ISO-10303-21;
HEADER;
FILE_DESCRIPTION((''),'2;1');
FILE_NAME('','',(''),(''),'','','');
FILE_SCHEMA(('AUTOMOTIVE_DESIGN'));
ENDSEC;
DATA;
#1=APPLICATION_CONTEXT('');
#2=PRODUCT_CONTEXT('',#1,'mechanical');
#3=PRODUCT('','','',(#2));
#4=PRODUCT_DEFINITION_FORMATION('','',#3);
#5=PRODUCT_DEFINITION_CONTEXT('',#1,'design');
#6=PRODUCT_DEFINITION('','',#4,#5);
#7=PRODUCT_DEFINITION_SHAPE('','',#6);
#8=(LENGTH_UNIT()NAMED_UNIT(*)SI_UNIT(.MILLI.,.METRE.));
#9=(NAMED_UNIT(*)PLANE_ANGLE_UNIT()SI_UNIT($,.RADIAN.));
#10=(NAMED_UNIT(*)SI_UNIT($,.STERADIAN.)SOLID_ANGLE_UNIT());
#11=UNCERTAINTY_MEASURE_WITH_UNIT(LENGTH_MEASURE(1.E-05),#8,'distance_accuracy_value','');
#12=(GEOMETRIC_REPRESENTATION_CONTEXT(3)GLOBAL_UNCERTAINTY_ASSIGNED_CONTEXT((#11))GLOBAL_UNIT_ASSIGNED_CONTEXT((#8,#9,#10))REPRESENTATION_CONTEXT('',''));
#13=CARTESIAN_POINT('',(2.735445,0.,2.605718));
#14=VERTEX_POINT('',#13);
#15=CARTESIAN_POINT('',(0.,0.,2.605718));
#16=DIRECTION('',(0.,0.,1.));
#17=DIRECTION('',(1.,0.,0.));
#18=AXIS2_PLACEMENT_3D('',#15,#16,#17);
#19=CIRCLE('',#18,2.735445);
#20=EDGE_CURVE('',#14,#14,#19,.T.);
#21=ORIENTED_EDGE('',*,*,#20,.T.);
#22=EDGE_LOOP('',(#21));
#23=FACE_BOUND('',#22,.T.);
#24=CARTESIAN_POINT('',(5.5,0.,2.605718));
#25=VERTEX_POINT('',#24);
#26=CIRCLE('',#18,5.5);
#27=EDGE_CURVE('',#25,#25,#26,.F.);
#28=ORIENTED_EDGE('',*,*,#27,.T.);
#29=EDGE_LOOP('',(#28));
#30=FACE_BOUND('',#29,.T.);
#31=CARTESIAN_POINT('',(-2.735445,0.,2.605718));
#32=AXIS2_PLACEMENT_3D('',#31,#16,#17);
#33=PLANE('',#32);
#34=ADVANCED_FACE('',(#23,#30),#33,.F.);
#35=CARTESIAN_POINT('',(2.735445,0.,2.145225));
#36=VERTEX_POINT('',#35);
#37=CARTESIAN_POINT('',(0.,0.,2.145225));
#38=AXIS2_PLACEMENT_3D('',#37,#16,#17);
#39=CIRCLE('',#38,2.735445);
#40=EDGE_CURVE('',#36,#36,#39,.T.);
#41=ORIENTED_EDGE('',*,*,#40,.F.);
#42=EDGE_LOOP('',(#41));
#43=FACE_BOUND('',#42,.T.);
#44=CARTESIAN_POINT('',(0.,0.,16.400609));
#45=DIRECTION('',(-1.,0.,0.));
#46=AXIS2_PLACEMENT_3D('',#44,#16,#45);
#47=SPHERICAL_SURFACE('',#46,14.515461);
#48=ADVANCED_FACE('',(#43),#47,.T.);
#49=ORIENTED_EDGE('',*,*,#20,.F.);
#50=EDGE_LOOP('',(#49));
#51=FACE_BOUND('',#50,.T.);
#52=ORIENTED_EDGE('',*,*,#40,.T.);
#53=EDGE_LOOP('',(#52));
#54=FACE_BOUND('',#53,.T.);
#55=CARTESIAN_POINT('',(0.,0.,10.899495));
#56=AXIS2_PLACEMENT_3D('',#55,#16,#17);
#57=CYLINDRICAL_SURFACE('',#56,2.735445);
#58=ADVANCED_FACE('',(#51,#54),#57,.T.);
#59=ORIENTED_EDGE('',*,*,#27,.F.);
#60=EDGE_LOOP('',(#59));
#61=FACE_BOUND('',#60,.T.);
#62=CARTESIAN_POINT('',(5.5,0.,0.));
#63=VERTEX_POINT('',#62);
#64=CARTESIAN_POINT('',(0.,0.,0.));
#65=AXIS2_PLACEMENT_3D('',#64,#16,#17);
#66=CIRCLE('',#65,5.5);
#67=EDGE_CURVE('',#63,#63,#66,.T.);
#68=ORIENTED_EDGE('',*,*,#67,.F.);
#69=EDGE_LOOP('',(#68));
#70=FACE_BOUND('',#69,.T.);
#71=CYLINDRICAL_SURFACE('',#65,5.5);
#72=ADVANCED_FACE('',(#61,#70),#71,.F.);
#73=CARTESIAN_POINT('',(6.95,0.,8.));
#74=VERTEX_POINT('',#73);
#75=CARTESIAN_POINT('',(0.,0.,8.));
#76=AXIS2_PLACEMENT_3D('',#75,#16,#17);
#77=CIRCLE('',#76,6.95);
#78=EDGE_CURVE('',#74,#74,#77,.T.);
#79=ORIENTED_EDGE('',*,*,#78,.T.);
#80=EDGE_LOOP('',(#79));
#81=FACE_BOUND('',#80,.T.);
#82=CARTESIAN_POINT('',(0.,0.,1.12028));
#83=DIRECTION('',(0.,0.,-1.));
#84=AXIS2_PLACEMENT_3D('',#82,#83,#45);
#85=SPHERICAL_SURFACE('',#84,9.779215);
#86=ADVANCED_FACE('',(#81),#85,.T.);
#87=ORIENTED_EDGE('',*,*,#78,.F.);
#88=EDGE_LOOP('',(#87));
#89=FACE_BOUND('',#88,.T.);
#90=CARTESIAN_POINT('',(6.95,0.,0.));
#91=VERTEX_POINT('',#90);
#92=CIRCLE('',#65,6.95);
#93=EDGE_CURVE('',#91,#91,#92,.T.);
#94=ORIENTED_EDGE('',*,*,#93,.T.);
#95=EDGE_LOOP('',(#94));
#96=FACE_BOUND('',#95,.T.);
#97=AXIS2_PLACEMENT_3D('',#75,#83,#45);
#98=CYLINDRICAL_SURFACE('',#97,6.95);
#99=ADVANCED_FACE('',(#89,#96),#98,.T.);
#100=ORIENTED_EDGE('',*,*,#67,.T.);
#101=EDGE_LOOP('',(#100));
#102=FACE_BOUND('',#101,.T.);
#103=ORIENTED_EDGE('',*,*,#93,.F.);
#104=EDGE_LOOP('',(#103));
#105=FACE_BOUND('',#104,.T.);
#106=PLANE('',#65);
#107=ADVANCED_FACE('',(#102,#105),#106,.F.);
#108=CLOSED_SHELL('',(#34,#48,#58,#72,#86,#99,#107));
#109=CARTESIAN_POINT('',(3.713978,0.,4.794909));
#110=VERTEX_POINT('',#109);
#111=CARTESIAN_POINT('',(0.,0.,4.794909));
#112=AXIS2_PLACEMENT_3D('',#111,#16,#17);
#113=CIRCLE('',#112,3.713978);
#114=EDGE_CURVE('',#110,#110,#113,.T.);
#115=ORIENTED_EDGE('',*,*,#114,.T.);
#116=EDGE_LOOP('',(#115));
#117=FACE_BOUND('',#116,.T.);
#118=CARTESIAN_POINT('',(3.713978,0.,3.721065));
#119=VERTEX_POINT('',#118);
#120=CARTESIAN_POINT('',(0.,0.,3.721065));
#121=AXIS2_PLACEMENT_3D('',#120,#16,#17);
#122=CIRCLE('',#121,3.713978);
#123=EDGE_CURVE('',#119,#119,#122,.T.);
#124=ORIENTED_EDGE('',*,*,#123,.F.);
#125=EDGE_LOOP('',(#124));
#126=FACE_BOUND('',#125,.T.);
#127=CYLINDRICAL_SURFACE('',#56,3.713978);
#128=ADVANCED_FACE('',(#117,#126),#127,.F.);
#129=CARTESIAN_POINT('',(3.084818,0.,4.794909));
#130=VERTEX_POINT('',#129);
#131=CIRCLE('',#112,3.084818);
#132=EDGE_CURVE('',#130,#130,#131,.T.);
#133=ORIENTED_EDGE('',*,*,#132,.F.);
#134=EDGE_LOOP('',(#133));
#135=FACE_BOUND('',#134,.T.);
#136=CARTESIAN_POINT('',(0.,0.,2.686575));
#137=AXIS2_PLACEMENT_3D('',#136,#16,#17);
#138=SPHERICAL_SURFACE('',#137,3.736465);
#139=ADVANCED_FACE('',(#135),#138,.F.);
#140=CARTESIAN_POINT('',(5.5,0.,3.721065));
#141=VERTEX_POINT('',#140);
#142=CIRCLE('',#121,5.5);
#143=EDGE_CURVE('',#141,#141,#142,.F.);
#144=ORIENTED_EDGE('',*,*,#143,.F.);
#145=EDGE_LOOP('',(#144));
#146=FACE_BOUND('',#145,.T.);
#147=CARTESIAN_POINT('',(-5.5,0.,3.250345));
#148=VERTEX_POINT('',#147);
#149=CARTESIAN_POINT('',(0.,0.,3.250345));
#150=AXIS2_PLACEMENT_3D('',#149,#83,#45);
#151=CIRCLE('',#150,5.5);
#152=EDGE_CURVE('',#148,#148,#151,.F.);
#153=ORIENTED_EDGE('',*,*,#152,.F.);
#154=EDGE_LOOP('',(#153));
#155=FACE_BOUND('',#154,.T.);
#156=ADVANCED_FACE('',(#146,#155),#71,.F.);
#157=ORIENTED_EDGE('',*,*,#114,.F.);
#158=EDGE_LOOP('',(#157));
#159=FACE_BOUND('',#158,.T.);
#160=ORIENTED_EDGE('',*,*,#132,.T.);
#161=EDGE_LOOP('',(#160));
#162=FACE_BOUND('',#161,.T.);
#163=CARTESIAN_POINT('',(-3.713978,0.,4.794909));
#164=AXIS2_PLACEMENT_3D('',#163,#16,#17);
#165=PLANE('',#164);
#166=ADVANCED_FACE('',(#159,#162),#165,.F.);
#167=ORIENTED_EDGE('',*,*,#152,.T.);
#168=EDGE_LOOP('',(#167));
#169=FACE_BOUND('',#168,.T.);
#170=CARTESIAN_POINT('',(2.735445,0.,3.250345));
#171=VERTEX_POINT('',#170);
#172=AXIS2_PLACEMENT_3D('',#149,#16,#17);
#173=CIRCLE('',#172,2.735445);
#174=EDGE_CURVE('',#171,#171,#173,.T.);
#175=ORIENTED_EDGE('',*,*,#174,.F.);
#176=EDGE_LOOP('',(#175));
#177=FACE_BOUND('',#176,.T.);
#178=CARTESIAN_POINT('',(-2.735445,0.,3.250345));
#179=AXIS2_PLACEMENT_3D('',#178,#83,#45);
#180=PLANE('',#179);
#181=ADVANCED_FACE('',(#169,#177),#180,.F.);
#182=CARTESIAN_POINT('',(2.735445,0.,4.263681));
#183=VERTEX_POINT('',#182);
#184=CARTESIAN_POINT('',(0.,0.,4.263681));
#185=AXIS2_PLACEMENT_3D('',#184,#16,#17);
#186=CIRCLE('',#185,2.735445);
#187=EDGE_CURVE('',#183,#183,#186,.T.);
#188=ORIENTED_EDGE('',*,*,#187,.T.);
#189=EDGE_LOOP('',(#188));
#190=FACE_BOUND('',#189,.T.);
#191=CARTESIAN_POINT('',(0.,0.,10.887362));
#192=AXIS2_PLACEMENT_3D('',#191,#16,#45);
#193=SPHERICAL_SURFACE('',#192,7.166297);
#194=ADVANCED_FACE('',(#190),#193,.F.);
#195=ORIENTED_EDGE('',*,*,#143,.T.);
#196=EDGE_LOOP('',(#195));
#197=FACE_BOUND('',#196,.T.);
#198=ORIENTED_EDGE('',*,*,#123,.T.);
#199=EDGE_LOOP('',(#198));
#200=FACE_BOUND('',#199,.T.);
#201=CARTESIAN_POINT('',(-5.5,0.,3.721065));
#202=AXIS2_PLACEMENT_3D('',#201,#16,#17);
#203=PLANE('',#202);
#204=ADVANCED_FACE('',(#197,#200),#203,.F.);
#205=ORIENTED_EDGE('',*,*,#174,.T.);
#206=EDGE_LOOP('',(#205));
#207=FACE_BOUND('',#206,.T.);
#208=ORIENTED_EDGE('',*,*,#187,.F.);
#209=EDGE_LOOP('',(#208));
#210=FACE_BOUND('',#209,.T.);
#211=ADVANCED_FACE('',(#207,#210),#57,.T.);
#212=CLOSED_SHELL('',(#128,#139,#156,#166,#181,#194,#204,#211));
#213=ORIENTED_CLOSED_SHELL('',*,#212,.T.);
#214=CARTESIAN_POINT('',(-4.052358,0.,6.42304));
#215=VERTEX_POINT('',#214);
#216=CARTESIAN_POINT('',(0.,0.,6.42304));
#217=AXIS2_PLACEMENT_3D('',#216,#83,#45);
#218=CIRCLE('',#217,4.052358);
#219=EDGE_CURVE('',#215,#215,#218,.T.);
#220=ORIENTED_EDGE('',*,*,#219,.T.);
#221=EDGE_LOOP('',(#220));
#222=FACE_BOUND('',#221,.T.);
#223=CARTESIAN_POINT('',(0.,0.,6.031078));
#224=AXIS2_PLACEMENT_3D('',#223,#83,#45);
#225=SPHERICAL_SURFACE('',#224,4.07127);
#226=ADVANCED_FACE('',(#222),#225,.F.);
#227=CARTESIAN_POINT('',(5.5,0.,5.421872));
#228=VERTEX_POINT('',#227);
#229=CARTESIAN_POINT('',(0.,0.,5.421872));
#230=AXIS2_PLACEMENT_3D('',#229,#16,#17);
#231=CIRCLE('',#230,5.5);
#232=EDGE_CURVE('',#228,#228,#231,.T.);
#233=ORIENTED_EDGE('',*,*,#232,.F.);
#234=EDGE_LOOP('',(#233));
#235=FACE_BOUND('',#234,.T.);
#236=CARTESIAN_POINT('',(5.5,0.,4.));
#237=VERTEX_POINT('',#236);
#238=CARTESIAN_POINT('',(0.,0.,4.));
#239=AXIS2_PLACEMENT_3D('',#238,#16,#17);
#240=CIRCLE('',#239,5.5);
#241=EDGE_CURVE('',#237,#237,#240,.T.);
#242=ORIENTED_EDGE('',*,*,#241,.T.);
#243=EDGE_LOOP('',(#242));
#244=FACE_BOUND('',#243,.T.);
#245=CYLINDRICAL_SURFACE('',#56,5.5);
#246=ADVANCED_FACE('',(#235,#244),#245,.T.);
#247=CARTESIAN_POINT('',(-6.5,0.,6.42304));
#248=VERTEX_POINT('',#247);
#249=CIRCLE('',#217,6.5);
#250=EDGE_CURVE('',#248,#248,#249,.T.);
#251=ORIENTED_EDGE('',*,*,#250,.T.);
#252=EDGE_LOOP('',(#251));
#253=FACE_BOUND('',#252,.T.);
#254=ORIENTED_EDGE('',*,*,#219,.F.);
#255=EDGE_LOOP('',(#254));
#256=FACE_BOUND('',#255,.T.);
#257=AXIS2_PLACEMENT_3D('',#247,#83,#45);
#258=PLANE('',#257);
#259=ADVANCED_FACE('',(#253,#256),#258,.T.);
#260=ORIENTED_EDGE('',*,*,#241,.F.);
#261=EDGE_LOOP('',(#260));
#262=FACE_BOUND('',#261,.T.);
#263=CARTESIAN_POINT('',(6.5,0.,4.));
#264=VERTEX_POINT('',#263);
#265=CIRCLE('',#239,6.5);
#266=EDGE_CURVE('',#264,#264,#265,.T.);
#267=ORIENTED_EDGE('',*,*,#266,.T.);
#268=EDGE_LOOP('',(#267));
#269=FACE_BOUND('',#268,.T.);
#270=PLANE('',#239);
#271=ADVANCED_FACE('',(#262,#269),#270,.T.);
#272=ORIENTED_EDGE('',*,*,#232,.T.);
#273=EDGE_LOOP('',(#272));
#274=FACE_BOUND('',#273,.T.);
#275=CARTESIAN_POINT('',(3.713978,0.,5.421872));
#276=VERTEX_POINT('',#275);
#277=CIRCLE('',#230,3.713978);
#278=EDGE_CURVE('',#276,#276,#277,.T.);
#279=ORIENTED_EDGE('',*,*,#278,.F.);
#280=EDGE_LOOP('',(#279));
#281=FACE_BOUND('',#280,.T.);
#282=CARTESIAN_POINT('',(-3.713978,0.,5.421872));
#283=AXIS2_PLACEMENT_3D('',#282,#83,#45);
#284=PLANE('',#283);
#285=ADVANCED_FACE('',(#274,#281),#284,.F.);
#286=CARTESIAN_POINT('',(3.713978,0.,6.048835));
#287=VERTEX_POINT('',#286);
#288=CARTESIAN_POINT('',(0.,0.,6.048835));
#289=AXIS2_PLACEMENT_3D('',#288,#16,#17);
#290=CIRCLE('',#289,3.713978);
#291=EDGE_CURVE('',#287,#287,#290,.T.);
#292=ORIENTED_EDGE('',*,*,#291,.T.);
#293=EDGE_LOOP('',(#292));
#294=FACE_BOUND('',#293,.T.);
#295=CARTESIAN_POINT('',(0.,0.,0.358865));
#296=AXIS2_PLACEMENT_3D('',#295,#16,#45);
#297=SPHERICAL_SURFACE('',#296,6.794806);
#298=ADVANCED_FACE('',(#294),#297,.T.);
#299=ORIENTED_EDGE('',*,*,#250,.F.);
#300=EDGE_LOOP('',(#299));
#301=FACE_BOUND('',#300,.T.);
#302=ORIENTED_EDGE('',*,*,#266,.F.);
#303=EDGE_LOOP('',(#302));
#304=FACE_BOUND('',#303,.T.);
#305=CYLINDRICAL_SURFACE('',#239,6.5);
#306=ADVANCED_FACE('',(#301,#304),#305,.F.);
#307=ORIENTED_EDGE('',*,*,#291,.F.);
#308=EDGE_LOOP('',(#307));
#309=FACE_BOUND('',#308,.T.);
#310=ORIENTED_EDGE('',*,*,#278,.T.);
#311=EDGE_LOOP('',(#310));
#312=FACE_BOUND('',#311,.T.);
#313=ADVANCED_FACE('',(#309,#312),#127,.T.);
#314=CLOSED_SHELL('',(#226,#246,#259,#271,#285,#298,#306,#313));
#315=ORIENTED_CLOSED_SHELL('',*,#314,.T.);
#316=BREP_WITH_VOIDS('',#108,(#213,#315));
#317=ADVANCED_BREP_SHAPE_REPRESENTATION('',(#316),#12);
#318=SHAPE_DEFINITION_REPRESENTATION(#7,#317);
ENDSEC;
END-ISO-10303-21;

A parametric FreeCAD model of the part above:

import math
import FreeCAD as App
import Part
import Sketcher

V = App.Vector

doc = App.newDocument("Part")
body = doc.addObject("PartDesign::Body", "Body")

sketch1 = doc.addObject("Sketcher::SketchObject", "Sketch")
body.addObject(sketch1)
sketch1.AttachmentSupport = (doc.XY_Plane, [""])
sketch1.MapMode = "FlatFace"
sketch1.addGeometry(Part.Circle(V(0, 0, 0), V(0, 0, 1), 7), False)
sketch1.addConstraint(Sketcher.Constraint("Coincident", 0, 3, -1, 1))
sketch1.addConstraint(Sketcher.Constraint("Diameter", 0, 13.9))
pad1 = doc.addObject("PartDesign::Pad", "Pad")
body.addObject(pad1)
pad1.Profile = sketch1
pad1.Length = 8

sketch2 = doc.addObject("Sketcher::SketchObject", "Sketch001")
body.addObject(sketch2)
sketch2.AttachmentSupport = (doc.XY_Plane, [""])
sketch2.MapMode = "FlatFace"
sketch2.AttachmentOffset = App.Placement(V(0, 0, 8), App.Rotation())
sketch2.addGeometry(Part.Circle(V(0, 0, 0), V(0, 0, 1), 6), False)
sketch2.addConstraint(Sketcher.Constraint("Coincident", 0, 3, -1, 1))
sketch2.addConstraint(Sketcher.Constraint("Diameter", 0, 13.0))
pocket1 = doc.addObject("PartDesign::Pocket", "Pocket")
body.addObject(pocket1)
pocket1.Profile = sketch2
pocket1.Length = 4

sketch3 = doc.addObject("Sketcher::SketchObject", "Sketch002")
body.addObject(sketch3)
sketch3.AttachmentSupport = (doc.XY_Plane, [""])
sketch3.MapMode = "FlatFace"
sketch3.AttachmentOffset = App.Placement(V(0, 0, 4), App.Rotation())
sketch3.addGeometry(Part.Circle(V(0, 0, 0), V(0, 0, 1), 6), False)
sketch3.addConstraint(Sketcher.Constraint("Coincident", 0, 3, -1, 1))
sketch3.addConstraint(Sketcher.Constraint("Diameter", 0, 11.0))
pocket2 = doc.addObject("PartDesign::Pocket", "Pocket001")
body.addObject(pocket2)
pocket2.Profile = sketch3
pocket2.Type = "ThroughAll"

sketch4 = doc.addObject("Sketcher::SketchObject", "Sketch003")
body.addObject(sketch4)
sketch4.AttachmentSupport = (doc.XZ_Plane, [""])
sketch4.MapMode = "FlatFace"
sketch4.addGeometry(Part.LineSegment(V(-6.5, 8, 0), V(-6.95, 8, 0)), False)
sketch4.addGeometry(Part.ArcOfCircle(Part.Circle(V(0, 1.12, 0), V(0, 0, 1), 9.78), math.radians(90), math.radians(135)), False)
sketch4.addGeometry(Part.LineSegment(V(0, 10.9, 0), V(0, 10.1, 0)), False)
sketch4.addGeometry(Part.ArcOfCircle(Part.Circle(V(0, 6.03, 0), V(0, 0, 1), 4.07), math.radians(90), math.radians(174)), False)
sketch4.addGeometry(Part.LineSegment(V(-4.05, 6.42, 0), V(-6.5, 6.42, 0)), False)
sketch4.addGeometry(Part.LineSegment(V(-6.5, 6.42, 0), V(-6.5, 8, 0)), False)
sketch4.addConstraint(Sketcher.Constraint("Coincident", 0, 2, 1, 2))
sketch4.addConstraint(Sketcher.Constraint("Coincident", 1, 1, 2, 1))
sketch4.addConstraint(Sketcher.Constraint("Coincident", 2, 2, 3, 1))
sketch4.addConstraint(Sketcher.Constraint("Coincident", 3, 2, 4, 1))
sketch4.addConstraint(Sketcher.Constraint("Coincident", 4, 2, 5, 1))
sketch4.addConstraint(Sketcher.Constraint("Coincident", 5, 2, 0, 1))
sketch4.addConstraint(Sketcher.Constraint("Horizontal", 0))
sketch4.addConstraint(Sketcher.Constraint("Vertical", 2))
sketch4.addConstraint(Sketcher.Constraint("Horizontal", 4))
sketch4.addConstraint(Sketcher.Constraint("Vertical", 5))
sketch4.addConstraint(Sketcher.Constraint("PointOnObject", 1, 3, -2))
sketch4.addConstraint(Sketcher.Constraint("PointOnObject", 3, 3, -2))
sketch4.addConstraint(Sketcher.Constraint("PointOnObject", 1, 1, -2))
sketch4.addConstraint(Sketcher.Constraint("DistanceY", -1, 1, 0, 2, 8.0))
sketch4.addConstraint(Sketcher.Constraint("DistanceX", 0, 2, 0, 1, 0.45))
sketch4.addConstraint(Sketcher.Constraint("DistanceX", 4, 2, -1, 1, 6.5))
sketch4.addConstraint(Sketcher.Constraint("Radius", 3, 4.07127))
sketch4.addConstraint(Sketcher.Constraint("Radius", 1, 9.779215))
sketch4.addConstraint(Sketcher.Constraint("DistanceY", 5, 1, 5, 2, 1.57696))
sketch4.addConstraint(Sketcher.Constraint("DistanceY", 1, 3, 3, 3, 4.910799))
revolution = doc.addObject("PartDesign::Revolution", "Revolution")
body.addObject(revolution)
revolution.Profile = sketch4
revolution.ReferenceAxis = (sketch4, ["V_Axis"])
revolution.Angle = 360

sketch5 = doc.addObject("Sketcher::SketchObject", "Sketch004")
body.addObject(sketch5)
sketch5.AttachmentSupport = (doc.XZ_Plane, [""])
sketch5.MapMode = "FlatFace"
sketch5.addGeometry(Part.LineSegment(V(-3.7, 5.4, 0), V(-3.7, 6, 0)), False)
sketch5.addGeometry(Part.ArcOfCircle(Part.Circle(V(0, 0.4, 0), V(0, 0, 1), 6.8), math.radians(90), math.radians(123)), False)
sketch5.addGeometry(Part.LineSegment(V(0, 7.2, 0), V(0, 6.4, 0)), False)
sketch5.addGeometry(Part.ArcOfCircle(Part.Circle(V(0, 2.7, 0), V(0, 0, 1), 3.7), math.radians(90), math.radians(146)), False)
sketch5.addGeometry(Part.LineSegment(V(-3.1, 4.8, 0), V(-3.7, 4.8, 0)), False)
sketch5.addGeometry(Part.LineSegment(V(-3.7, 4.8, 0), V(-3.7, 3.7, 0)), False)
sketch5.addGeometry(Part.LineSegment(V(-3.7, 3.7, 0), V(-5.5, 3.7, 0)), False)
sketch5.addGeometry(Part.LineSegment(V(-5.5, 3.7, 0), V(-5.5, 5.4, 0)), False)
sketch5.addGeometry(Part.LineSegment(V(-5.5, 5.4, 0), V(-3.7, 5.4, 0)), False)
sketch5.addConstraint(Sketcher.Constraint("Coincident", 0, 2, 1, 2))
sketch5.addConstraint(Sketcher.Constraint("Coincident", 1, 1, 2, 1))
sketch5.addConstraint(Sketcher.Constraint("Coincident", 2, 2, 3, 1))
sketch5.addConstraint(Sketcher.Constraint("Coincident", 3, 2, 4, 1))
sketch5.addConstraint(Sketcher.Constraint("Coincident", 4, 2, 5, 1))
sketch5.addConstraint(Sketcher.Constraint("Coincident", 5, 2, 6, 1))
sketch5.addConstraint(Sketcher.Constraint("Coincident", 6, 2, 7, 1))
sketch5.addConstraint(Sketcher.Constraint("Coincident", 7, 2, 8, 1))
sketch5.addConstraint(Sketcher.Constraint("Coincident", 8, 2, 0, 1))
sketch5.addConstraint(Sketcher.Constraint("Vertical", 0))
sketch5.addConstraint(Sketcher.Constraint("Vertical", 2))
sketch5.addConstraint(Sketcher.Constraint("Horizontal", 4))
sketch5.addConstraint(Sketcher.Constraint("Vertical", 5))
sketch5.addConstraint(Sketcher.Constraint("Horizontal", 6))
sketch5.addConstraint(Sketcher.Constraint("Vertical", 7))
sketch5.addConstraint(Sketcher.Constraint("Horizontal", 8))
sketch5.addConstraint(Sketcher.Constraint("PointOnObject", 1, 3, -2))
sketch5.addConstraint(Sketcher.Constraint("PointOnObject", 3, 3, -2))
sketch5.addConstraint(Sketcher.Constraint("PointOnObject", 1, 1, -2))
sketch5.addConstraint(Sketcher.Constraint("Vertical", 0, 2, 4, 2))
sketch5.addConstraint(Sketcher.Constraint("DistanceX", 6, 2, -1, 1, 5.5))
sketch5.addConstraint(Sketcher.Constraint("Radius", 1, 6.794806))
sketch5.addConstraint(Sketcher.Constraint("Radius", 3, 3.736465))
sketch5.addConstraint(Sketcher.Constraint("DistanceX", 4, 2, 4, 1, 0.62916))
sketch5.addConstraint(Sketcher.Constraint("DistanceY", 2, 2, 2, 1, 0.730631))
sketch5.addConstraint(Sketcher.Constraint("DistanceX", 6, 2, 6, 1, 1.786022))
sketch5.addConstraint(Sketcher.Constraint("DistanceY", 0, 1, 0, 2, 0.626963))
sketch5.addConstraint(Sketcher.Constraint("DistanceY", 5, 2, 5, 1, 1.073844))
sketch5.addConstraint(Sketcher.Constraint("DistanceY", -1, 1, 1, 1, 7.153671))
revolution2 = doc.addObject("PartDesign::Revolution", "Revolution001")
body.addObject(revolution2)
revolution2.Profile = sketch5
revolution2.ReferenceAxis = (sketch5, ["V_Axis"])
revolution2.Angle = 360

sketch6 = doc.addObject("Sketcher::SketchObject", "Sketch005")
body.addObject(sketch6)
sketch6.AttachmentSupport = (doc.XZ_Plane, [""])
sketch6.MapMode = "FlatFace"
sketch6.addGeometry(Part.LineSegment(V(-2.74, 3.25, 0), V(-2.74, 4.26, 0)), False)
sketch6.addGeometry(Part.ArcOfCircle(Part.Circle(V(0, 10.89, 0), V(0, 0, 1), 7.17), math.radians(-112), math.radians(-90)), False)
sketch6.addGeometry(Part.LineSegment(V(0, 3.72, 0), V(0, 1.89, 0)), False)
sketch6.addGeometry(Part.ArcOfCircle(Part.Circle(V(0, 16.4, 0), V(0, 0, 1), 14.52), math.radians(-100.86), math.radians(-90)), False)
sketch6.addGeometry(Part.LineSegment(V(-2.74, 2.15, 0), V(-2.74, 2.61, 0)), False)
sketch6.addGeometry(Part.LineSegment(V(-2.74, 2.61, 0), V(-5.5, 2.61, 0)), False)
sketch6.addGeometry(Part.LineSegment(V(-5.5, 2.61, 0), V(-5.5, 3.25, 0)), False)
sketch6.addGeometry(Part.LineSegment(V(-5.5, 3.25, 0), V(-2.74, 3.25, 0)), False)
sketch6.addConstraint(Sketcher.Constraint("Coincident", 0, 2, 1, 1))
sketch6.addConstraint(Sketcher.Constraint("Coincident", 1, 2, 2, 1))
sketch6.addConstraint(Sketcher.Constraint("Coincident", 2, 2, 3, 2))
sketch6.addConstraint(Sketcher.Constraint("Coincident", 3, 1, 4, 1))
sketch6.addConstraint(Sketcher.Constraint("Coincident", 4, 2, 5, 1))
sketch6.addConstraint(Sketcher.Constraint("Coincident", 5, 2, 6, 1))
sketch6.addConstraint(Sketcher.Constraint("Coincident", 6, 2, 7, 1))
sketch6.addConstraint(Sketcher.Constraint("Coincident", 7, 2, 0, 1))
sketch6.addConstraint(Sketcher.Constraint("Vertical", 0))
sketch6.addConstraint(Sketcher.Constraint("Vertical", 2))
sketch6.addConstraint(Sketcher.Constraint("Vertical", 4))
sketch6.addConstraint(Sketcher.Constraint("Horizontal", 5))
sketch6.addConstraint(Sketcher.Constraint("Vertical", 6))
sketch6.addConstraint(Sketcher.Constraint("Horizontal", 7))
sketch6.addConstraint(Sketcher.Constraint("PointOnObject", 1, 3, -2))
sketch6.addConstraint(Sketcher.Constraint("PointOnObject", 3, 3, -2))
sketch6.addConstraint(Sketcher.Constraint("PointOnObject", 1, 2, -2))
sketch6.addConstraint(Sketcher.Constraint("Vertical", 0, 2, 3, 1))
sketch6.addConstraint(Sketcher.Constraint("DistanceX", 5, 2, -1, 1, 5.5))
sketch6.addConstraint(Sketcher.Constraint("Radius", 3, 14.515461))
sketch6.addConstraint(Sketcher.Constraint("Radius", 1, 7.166297))
sketch6.addConstraint(Sketcher.Constraint("DistanceX", 5, 2, 5, 1, 2.764555))
sketch6.addConstraint(Sketcher.Constraint("DistanceY", 0, 1, 0, 2, 1.013336))
sketch6.addConstraint(Sketcher.Constraint("DistanceY", 2, 2, 2, 1, 1.835917))
sketch6.addConstraint(Sketcher.Constraint("DistanceY", 4, 1, 4, 2, 0.460492))
sketch6.addConstraint(Sketcher.Constraint("DistanceY", -1, 1, 1, 3, 10.887362))
revolution3 = doc.addObject("PartDesign::Revolution", "Revolution002")
body.addObject(revolution3)
revolution3.Profile = sketch6
revolution3.ReferenceAxis = (sketch6, ["V_Axis"])
revolution3.Angle = 360

doc.recompute()
